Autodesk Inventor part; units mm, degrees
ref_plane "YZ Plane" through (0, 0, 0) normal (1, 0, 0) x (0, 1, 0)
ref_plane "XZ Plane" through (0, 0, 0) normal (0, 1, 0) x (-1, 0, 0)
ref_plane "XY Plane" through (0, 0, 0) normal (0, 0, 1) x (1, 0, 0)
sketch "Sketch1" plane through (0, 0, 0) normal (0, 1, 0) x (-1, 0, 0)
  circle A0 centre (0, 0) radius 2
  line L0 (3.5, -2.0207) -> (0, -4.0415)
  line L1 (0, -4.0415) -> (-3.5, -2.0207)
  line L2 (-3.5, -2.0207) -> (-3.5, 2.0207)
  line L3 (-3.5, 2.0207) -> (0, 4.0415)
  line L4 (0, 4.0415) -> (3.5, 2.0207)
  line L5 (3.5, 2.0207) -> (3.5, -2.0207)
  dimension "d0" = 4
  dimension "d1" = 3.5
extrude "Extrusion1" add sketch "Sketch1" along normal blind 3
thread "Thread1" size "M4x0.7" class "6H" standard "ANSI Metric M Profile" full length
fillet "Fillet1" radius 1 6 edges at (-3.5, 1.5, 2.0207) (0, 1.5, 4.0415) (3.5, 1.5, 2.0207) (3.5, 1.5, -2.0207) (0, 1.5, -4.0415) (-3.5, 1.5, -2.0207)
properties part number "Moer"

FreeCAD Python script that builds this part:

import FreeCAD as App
import Part
import Sketcher
from FreeCAD import Vector
Q = App.Units.Quantity


def edges_at(feature, points):
    """Names of the edges that pass closest to the given points."""
    edges = feature.Shape.Edges
    near = lambda p: min(range(len(edges)), key=lambda i: edges[i].distToShape(Part.Vertex(*p))[0])
    return sorted({f"Edge{near(p) + 1}" for p in points})

doc = App.newDocument("Part")
body = doc.addObject("PartDesign::Body", "Body")

# Sketch on XZ plane
sketch1 = doc.addObject("Sketcher::SketchObject", "Sketch")
body.addObject(sketch1)
sketch1.AttachmentSupport = (doc.XZ_Plane, [""])
sketch1.MapMode = "FlatFace"
sketch1.addGeometry([
    Part.LineSegment(Vector(0, -4, 0), Vector(-3.5, -2, 0)),  # 0
    Part.LineSegment(Vector(-3.5, -2, 0), Vector(-3.5, 2, 0)),  # 1
    Part.LineSegment(Vector(-3.5, 2, 0), Vector(0, 4, 0)),  # 2
    Part.LineSegment(Vector(0, 4, 0), Vector(3.5, 2, 0)),  # 3
    Part.LineSegment(Vector(3.5, 2, 0), Vector(3.5, -2, 0)),  # 4
    Part.LineSegment(Vector(3.5, -2, 0), Vector(0, -4, 0)),  # 5
    Part.Circle(Vector(0, 0, 0), Vector(0, 0, 1), 2),  # 6
], False)
sketch1.addConstraint([
    Sketcher.Constraint("Coincident", 0, 2, 1, 1),
    Sketcher.Constraint("Coincident", 1, 2, 2, 1),
    Sketcher.Constraint("Coincident", 2, 2, 3, 1),
    Sketcher.Constraint("Coincident", 3, 2, 4, 1),
    Sketcher.Constraint("Coincident", 4, 2, 5, 1),
    Sketcher.Constraint("Coincident", 5, 2, 0, 1),
    Sketcher.Constraint("Vertical", 1),
    Sketcher.Constraint("Vertical", 4),
    Sketcher.Constraint("Coincident", 6, 3, -1, 1),
    Sketcher.Constraint("Symmetric", 0, 2, 3, 2, -1, 1),
    Sketcher.Constraint("Symmetric", 2, 2, 5, 2, -1, 1),
    Sketcher.Constraint("PointOnObject", 2, 2, -2),
    Sketcher.Constraint("Parallel", 2, 5),
    Sketcher.Constraint("Horizontal", 1, 2, 3, 2),
    Sketcher.Constraint("Diameter", 6, 4.0),
    Sketcher.Constraint("DistanceX", 0, 2, -1, 1, 3.5),
    Sketcher.Constraint("Angle", 0, Q("149.999 deg")),
    Sketcher.Constraint("DistanceY", 1, 1, 1, 2, 4.0414),
])
pad1 = doc.addObject("PartDesign::Pad", "Pad")
body.addObject(pad1)
pad1.Profile = sketch1
pad1.Length = 3
pad1.Reversed = True
doc.recompute()

fillet = doc.addObject("PartDesign::Fillet", "Fillet")
body.addObject(fillet)
fillet.Base = (pad1, edges_at(pad1, [
    (-3.5, 1.5, 2.021),
    (0, 1.5, 4.042),
    (3.5, 1.5, 2.021),
    (3.5, 1.5, -2.021),
    (0, 1.5, -4.042),
    (-3.5, 1.5, -2.021),
]))
fillet.Radius = 1

doc.recompute()
